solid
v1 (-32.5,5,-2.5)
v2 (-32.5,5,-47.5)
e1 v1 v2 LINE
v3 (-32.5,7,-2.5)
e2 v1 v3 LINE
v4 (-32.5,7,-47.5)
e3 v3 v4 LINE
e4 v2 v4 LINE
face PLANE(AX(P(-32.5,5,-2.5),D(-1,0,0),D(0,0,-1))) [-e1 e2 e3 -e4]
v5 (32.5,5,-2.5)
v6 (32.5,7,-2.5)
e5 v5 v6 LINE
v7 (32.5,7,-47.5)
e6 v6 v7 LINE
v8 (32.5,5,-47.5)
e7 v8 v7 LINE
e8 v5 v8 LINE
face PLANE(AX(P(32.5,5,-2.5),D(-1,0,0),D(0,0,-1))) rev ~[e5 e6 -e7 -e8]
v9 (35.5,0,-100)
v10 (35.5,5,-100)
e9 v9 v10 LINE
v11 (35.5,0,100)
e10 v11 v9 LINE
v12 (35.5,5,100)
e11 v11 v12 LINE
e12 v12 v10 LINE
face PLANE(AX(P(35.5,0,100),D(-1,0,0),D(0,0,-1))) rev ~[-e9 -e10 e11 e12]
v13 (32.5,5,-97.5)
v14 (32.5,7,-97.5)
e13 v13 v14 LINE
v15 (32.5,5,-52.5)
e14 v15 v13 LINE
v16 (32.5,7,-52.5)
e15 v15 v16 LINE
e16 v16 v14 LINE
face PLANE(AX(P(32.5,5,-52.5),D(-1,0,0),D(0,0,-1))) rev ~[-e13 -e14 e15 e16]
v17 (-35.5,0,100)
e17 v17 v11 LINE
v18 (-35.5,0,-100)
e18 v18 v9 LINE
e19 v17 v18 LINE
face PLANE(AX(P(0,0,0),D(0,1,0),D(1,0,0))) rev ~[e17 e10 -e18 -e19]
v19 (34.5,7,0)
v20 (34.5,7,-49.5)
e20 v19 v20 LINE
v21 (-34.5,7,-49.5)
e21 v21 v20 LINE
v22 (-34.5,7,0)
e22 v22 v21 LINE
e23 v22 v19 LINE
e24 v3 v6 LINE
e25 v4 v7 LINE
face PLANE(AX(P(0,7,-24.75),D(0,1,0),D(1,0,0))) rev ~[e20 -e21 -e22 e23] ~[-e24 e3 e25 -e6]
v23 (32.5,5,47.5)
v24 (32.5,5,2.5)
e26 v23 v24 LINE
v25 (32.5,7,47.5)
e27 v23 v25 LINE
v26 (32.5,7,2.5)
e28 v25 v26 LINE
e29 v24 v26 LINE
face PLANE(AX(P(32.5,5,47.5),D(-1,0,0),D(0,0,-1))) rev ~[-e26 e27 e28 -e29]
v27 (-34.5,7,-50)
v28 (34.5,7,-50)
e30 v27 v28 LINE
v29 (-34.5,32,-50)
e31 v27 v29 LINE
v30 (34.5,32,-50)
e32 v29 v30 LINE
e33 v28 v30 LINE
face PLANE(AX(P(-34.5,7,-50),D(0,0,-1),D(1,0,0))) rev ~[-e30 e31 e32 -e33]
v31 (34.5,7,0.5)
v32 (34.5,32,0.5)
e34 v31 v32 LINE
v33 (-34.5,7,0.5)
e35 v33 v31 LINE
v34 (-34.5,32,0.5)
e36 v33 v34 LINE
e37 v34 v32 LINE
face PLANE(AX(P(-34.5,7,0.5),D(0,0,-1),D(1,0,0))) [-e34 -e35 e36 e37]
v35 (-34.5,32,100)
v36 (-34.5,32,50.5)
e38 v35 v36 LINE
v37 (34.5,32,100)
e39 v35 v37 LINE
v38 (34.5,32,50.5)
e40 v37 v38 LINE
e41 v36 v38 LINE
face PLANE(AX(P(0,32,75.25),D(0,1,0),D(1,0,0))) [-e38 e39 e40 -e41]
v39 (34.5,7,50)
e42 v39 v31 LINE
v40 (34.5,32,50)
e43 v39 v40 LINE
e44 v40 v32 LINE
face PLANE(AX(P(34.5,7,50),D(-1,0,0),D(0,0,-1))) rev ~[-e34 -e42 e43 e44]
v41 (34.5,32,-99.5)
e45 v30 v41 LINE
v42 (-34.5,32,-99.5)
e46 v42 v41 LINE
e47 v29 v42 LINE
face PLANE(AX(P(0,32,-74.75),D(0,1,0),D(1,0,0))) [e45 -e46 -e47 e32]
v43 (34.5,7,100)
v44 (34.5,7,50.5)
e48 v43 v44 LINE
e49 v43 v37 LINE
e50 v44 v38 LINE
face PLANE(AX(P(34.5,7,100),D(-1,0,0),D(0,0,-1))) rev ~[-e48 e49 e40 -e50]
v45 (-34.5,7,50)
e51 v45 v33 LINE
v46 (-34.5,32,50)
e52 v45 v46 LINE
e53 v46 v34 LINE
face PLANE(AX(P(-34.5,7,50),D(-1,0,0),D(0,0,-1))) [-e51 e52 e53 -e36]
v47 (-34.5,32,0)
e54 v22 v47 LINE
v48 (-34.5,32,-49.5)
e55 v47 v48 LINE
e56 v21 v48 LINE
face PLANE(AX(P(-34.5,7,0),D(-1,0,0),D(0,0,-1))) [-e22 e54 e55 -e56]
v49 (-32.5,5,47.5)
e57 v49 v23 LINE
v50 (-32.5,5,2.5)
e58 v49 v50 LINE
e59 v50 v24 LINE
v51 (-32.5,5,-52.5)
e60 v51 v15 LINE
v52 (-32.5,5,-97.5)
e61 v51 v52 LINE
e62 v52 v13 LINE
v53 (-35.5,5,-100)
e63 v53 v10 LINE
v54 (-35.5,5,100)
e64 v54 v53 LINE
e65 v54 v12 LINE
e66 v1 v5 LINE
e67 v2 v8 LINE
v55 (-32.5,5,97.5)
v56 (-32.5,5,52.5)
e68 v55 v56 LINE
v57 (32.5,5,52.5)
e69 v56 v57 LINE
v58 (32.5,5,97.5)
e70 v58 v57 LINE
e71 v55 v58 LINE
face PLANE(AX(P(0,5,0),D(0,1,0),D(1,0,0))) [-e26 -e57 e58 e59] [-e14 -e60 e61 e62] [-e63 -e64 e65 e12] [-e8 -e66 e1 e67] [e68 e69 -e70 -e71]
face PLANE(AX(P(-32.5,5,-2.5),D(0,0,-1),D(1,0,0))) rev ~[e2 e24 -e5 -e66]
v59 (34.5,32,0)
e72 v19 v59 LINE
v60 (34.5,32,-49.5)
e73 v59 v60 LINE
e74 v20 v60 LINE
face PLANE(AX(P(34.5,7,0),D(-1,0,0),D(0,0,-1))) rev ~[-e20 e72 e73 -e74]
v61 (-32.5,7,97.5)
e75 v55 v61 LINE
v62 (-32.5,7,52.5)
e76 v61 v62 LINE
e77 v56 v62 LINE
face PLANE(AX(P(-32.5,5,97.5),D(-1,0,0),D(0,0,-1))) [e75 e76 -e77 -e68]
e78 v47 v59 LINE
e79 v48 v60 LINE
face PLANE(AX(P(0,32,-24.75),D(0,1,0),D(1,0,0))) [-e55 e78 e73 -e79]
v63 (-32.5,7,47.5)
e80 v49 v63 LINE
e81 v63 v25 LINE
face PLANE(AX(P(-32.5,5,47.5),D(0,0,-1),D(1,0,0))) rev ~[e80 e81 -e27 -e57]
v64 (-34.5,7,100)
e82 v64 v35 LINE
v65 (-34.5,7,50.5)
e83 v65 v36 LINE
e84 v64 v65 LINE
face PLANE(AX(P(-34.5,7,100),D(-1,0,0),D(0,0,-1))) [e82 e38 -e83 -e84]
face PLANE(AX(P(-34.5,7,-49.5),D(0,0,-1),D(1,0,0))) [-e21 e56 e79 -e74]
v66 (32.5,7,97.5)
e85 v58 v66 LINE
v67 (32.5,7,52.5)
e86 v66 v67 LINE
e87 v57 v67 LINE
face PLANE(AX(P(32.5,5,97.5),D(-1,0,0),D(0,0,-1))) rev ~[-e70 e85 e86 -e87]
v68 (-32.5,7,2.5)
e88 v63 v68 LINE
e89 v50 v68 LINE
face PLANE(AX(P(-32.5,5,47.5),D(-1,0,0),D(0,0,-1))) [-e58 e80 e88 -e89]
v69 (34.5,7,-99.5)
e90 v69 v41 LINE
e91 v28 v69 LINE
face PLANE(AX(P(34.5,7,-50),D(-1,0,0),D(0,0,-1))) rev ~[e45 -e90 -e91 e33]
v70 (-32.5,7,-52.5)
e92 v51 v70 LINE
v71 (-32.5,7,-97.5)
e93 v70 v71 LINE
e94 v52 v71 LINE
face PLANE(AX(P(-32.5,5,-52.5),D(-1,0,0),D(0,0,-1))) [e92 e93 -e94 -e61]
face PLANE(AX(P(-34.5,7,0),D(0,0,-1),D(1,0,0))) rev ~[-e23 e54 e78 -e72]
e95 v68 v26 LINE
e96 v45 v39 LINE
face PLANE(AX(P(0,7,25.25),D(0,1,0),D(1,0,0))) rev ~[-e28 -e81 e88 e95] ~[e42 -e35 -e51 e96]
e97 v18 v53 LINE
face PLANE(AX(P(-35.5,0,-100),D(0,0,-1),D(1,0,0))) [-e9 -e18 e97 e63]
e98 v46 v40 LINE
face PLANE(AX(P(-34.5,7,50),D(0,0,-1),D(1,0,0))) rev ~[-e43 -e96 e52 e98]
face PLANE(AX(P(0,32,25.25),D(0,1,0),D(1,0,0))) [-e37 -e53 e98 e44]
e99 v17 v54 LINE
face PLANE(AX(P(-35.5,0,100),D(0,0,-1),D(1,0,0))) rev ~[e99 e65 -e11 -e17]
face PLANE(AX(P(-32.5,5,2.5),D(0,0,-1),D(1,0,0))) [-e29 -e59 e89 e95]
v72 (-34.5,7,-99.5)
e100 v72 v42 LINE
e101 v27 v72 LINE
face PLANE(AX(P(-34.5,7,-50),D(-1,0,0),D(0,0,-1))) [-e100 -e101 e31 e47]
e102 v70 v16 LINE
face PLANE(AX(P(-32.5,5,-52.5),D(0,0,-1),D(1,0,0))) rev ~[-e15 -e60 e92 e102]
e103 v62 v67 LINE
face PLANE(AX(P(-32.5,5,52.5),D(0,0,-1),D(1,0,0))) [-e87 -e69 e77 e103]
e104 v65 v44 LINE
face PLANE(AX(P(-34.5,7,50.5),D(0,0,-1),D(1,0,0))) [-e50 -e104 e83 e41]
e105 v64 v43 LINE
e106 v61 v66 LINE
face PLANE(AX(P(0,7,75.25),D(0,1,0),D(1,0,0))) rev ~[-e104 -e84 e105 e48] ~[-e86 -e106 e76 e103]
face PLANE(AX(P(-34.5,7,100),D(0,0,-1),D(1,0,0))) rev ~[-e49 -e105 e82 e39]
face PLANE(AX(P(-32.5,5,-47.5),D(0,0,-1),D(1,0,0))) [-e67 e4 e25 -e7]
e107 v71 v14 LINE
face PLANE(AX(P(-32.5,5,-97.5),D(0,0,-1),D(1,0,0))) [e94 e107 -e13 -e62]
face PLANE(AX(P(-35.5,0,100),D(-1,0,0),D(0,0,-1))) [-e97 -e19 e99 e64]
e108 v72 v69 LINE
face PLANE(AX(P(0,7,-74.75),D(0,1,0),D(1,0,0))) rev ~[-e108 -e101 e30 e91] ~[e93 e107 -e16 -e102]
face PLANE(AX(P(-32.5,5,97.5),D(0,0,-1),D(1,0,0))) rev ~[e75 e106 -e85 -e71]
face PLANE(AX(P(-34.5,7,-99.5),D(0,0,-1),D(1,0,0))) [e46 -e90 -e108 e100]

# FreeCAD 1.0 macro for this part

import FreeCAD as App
import Part
import Sketcher
from FreeCAD import Vector
Q = App.Units.Quantity


def add_polygon(sketch, points):
    """Adds a closed chain of lines whose ends are joined by coincident constraints."""
    first, n = sketch.GeometryCount, len(points)
    for a, b in zip(points, points[1:] + points[:1]):
        sketch.addGeometry(Part.LineSegment(App.Vector(*a, 0), App.Vector(*b, 0)), False)
    for i in range(n):
        sketch.addConstraint(Sketcher.Constraint("Coincident", first + i, 2, first + (i + 1) % n, 1))

doc = App.newDocument("Part")
body = doc.addObject("PartDesign::Body", "Body")

sketch1 = body.newObject("Sketcher::SketchObject", "Sketch")
sketch1.AttachmentSupport = (doc.getObject("XZ_Plane"), [""])
sketch1.MapMode = "FlatFace"
add_polygon(sketch1, [(-36, -100), (-36, 100), (36, 100), (36, -100)])
sketch1.addConstraint(Sketcher.Constraint("Vertical", 0))
sketch1.addConstraint(Sketcher.Constraint("Horizontal", 1))
sketch1.addConstraint(Sketcher.Constraint("Vertical", 2))
sketch1.addConstraint(Sketcher.Constraint("Horizontal", 3))
sketch1.addConstraint(Sketcher.Constraint("Symmetric", 0, 2, 2, 2, -1, 1))
sketch1.addConstraint(Sketcher.Constraint("DistanceX", 1, 1, 1, 2, Q("71 mm")))
sketch1.addConstraint(Sketcher.Constraint("DistanceY", 0, 1, 0, 2, Q("200 mm")))
pad1 = body.newObject("PartDesign::Pad", "Pad")
pad1.Profile = sketch1
pad1.Length = 5
pad1.Reversed = True

sketch2 = body.newObject("Sketcher::SketchObject", "Sketch001")
sketch2.AttachmentSupport = (doc.getObject("XZ_Plane"), [""])
sketch2.MapMode = "FlatFace"
sketch2.AttachmentOffset = App.Placement(Vector(0, 0, -5), App.Rotation())
add_polygon(sketch2, [(-32, 52), (-32, 98), (32, 98), (32, 52)])
sketch2.addConstraint(Sketcher.Constraint("Vertical", 0))
sketch2.addConstraint(Sketcher.Constraint("Horizontal", 1))
sketch2.addConstraint(Sketcher.Constraint("Vertical", 2))
sketch2.addConstraint(Sketcher.Constraint("Horizontal", 3))
sketch2.addConstraint(Sketcher.Constraint("DistanceX", 1, 1, 1, 2, Q("65 mm")))
sketch2.addConstraint(Sketcher.Constraint("DistanceY", 0, 1, 0, 2, Q("45 mm")))
sketch2.addConstraint(Sketcher.Constraint("DistanceX", 0, 2, -1, 1, Q("32.5 mm")))
sketch2.addConstraint(Sketcher.Constraint("DistanceY", -1, 1, 0, 2, Q("97.5 mm")))
pad2 = body.newObject("PartDesign::Pad", "Pad001")
pad2.Profile = sketch2
pad2.Length = 2
pad2.Reversed = True
doc.recompute()

linearpattern = body.newObject("PartDesign::LinearPattern", "LinearPattern")
linearpattern.Originals = [pad2]
linearpattern.Direction = (doc.getObject("Z_Axis"), [""])
linearpattern.Mode = "offset"
linearpattern.Offset = 50
linearpattern.Occurrences = 4
linearpattern.Reversed = True
body.Tip = linearpattern

sketch3 = body.newObject("Sketcher::SketchObject", "Sketch002")
sketch3.AttachmentSupport = (doc.getObject("XZ_Plane"), [""])
sketch3.MapMode = "FlatFace"
sketch3.AttachmentOffset = App.Placement(Vector(0, 0, -7), App.Rotation())
add_polygon(sketch3, [(-34, 50), (-34, 100), (34, 100), (34, 50)])
sketch3.addConstraint(Sketcher.Constraint("Vertical", 0))
sketch3.addConstraint(Sketcher.Constraint("Horizontal", 1))
sketch3.addConstraint(Sketcher.Constraint("Vertical", 2))
sketch3.addConstraint(Sketcher.Constraint("Horizontal", 3))
sketch3.addConstraint(Sketcher.Constraint("DistanceX", 1, 1, 1, 2, Q("69 mm")))
sketch3.addConstraint(Sketcher.Constraint("DistanceY", 0, 1, 0, 2, Q("49.5 mm")))
sketch3.addConstraint(Sketcher.Constraint("DistanceY", -1, 1, 0, 2, Q("100 mm")))
sketch3.addConstraint(Sketcher.Constraint("DistanceX", 0, 2, -1, 1, Q("34.5 mm")))
pad3 = body.newObject("PartDesign::Pad", "Pad002")
pad3.Profile = sketch3
pad3.Length = 25
pad3.Reversed = True
doc.recompute()

linearpattern2 = body.newObject("PartDesign::LinearPattern", "LinearPattern001")
linearpattern2.Originals = [pad3]
linearpattern2.Direction = (doc.getObject("Z_Axis"), [""])
linearpattern2.Mode = "offset"
linearpattern2.Offset = 50
linearpattern2.Occurrences = 4
linearpattern2.Reversed = True
body.Tip = linearpattern2

doc.recompute()
